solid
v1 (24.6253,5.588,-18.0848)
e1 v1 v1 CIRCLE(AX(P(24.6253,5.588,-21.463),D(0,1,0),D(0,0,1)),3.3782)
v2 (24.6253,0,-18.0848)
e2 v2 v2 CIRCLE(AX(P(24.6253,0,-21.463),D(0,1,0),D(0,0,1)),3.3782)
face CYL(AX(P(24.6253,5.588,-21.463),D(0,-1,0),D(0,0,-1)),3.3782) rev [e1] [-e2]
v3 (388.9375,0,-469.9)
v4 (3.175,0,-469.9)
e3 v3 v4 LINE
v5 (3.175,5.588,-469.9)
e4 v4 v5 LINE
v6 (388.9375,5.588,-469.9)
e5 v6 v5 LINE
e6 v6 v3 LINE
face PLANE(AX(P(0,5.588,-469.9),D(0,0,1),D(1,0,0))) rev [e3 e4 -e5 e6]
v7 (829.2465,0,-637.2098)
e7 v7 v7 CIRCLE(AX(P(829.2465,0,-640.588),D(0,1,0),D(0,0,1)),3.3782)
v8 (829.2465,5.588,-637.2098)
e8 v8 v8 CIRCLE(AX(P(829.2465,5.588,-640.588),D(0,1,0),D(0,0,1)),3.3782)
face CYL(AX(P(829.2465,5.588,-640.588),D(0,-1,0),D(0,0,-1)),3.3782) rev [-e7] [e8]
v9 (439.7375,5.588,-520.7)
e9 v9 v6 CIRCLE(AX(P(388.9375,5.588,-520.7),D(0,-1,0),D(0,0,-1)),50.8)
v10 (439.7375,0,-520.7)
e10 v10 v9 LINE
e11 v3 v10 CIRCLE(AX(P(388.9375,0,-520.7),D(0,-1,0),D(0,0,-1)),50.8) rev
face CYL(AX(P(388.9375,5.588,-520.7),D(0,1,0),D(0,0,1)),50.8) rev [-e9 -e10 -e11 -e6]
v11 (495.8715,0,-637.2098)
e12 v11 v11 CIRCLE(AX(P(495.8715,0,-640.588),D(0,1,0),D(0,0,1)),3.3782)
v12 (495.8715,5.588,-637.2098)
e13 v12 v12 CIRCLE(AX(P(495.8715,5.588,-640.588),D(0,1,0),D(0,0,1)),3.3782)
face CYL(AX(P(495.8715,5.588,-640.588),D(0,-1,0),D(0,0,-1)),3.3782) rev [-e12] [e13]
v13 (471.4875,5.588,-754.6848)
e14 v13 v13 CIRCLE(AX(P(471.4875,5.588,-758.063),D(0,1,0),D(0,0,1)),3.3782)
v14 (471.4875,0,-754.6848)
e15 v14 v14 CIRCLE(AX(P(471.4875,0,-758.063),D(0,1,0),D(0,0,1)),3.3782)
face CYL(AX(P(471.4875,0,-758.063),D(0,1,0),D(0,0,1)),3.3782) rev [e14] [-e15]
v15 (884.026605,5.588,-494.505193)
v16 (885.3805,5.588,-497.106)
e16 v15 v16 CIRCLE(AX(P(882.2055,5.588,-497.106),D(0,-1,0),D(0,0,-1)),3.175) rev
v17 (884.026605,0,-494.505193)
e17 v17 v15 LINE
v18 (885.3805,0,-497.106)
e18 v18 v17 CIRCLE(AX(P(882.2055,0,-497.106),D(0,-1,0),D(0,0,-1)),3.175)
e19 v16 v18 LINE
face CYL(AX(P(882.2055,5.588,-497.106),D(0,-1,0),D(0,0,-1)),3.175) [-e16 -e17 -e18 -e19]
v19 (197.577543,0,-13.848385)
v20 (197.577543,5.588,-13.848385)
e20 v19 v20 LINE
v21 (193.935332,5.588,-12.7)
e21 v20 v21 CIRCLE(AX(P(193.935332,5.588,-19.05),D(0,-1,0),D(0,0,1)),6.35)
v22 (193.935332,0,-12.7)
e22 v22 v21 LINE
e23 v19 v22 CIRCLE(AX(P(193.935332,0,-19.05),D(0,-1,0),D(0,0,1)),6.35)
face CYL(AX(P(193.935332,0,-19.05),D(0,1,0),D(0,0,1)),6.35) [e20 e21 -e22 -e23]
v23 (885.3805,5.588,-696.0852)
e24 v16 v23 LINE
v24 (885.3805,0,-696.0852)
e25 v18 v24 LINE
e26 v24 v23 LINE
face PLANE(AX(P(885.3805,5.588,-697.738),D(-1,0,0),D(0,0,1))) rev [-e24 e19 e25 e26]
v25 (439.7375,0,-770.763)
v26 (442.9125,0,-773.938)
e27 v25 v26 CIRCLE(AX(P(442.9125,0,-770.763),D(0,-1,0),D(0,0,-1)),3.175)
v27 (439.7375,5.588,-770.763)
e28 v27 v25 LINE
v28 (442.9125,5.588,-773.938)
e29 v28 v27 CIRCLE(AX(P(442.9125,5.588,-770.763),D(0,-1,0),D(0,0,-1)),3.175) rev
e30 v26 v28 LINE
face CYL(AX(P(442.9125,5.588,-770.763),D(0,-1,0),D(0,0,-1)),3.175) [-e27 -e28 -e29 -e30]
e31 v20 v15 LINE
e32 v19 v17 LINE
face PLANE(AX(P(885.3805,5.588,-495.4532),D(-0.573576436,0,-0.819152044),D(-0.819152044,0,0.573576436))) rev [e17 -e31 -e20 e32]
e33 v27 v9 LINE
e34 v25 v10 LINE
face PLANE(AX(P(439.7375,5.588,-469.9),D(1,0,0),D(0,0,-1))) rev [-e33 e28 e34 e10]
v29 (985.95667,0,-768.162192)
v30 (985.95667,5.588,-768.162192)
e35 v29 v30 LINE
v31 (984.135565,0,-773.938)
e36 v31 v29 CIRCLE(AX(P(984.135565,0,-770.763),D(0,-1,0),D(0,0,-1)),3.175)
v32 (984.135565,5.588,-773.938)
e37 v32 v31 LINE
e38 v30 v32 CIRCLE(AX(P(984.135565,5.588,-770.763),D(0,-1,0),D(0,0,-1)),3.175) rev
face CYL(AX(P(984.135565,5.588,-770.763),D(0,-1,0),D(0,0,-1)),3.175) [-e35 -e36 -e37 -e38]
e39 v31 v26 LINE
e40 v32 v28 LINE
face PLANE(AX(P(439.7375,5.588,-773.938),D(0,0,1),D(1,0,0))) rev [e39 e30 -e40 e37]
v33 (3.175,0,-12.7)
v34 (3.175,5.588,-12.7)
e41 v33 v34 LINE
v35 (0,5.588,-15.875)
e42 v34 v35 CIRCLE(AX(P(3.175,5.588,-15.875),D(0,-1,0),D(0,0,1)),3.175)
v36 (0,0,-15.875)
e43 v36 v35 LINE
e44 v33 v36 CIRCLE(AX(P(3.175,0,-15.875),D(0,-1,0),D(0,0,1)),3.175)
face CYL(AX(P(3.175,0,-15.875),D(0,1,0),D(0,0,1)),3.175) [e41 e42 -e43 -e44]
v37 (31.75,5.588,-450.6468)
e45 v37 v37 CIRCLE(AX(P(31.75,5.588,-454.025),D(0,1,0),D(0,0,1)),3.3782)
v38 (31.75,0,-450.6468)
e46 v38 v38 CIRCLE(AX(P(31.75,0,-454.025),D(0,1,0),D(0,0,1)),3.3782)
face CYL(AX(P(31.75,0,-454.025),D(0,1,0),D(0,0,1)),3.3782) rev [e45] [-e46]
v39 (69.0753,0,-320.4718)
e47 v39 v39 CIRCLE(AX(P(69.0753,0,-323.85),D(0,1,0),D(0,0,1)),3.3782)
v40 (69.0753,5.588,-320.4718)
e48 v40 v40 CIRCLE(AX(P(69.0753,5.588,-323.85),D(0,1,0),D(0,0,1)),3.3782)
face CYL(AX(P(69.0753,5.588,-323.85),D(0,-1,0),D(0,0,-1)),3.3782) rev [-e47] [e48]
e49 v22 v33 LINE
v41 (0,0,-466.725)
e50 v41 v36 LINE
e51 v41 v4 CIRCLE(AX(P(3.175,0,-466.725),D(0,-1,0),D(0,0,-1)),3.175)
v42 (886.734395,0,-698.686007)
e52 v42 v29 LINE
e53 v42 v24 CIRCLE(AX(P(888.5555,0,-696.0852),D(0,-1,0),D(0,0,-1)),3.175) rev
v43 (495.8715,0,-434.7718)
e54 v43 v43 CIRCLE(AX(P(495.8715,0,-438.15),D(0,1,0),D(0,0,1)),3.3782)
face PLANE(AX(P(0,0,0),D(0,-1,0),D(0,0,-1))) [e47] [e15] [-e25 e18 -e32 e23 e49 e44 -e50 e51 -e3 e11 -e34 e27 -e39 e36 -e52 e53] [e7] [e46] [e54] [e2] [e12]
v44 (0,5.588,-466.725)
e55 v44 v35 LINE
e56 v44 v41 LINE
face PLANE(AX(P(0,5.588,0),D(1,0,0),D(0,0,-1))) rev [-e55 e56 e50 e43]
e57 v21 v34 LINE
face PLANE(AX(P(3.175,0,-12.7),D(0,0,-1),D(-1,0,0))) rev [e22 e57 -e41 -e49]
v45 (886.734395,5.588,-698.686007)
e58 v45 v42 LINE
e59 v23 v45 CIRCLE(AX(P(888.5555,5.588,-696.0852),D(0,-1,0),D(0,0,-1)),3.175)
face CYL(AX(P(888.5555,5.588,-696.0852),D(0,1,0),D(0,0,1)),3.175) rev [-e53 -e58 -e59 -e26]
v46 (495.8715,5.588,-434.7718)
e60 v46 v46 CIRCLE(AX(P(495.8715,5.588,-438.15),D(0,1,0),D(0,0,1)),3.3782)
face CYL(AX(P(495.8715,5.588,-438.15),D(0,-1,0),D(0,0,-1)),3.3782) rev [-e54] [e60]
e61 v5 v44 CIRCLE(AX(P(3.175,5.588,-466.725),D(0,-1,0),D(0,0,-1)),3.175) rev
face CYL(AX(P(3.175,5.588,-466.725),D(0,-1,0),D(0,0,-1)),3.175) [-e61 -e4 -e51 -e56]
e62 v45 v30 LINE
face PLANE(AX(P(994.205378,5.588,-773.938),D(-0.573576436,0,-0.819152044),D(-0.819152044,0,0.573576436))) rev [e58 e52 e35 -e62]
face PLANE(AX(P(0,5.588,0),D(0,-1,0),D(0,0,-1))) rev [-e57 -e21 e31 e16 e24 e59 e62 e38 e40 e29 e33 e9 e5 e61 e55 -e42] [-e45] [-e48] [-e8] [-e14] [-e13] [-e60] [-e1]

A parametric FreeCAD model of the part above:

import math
import FreeCAD as App
import Part
import Sketcher
from FreeCAD import Vector
Q = App.Units.Quantity


def edges_at(feature, points):
    """Names of the edges that pass closest to the given points."""
    edges = feature.Shape.Edges
    near = lambda p: min(range(len(edges)), key=lambda i: edges[i].distToShape(Part.Vertex(*p))[0])
    return sorted({f"Edge{near(p) + 1}" for p in points})


def add_polygon(sketch, points):
    """Adds a closed chain of lines whose ends are joined by coincident constraints."""
    first, n = sketch.GeometryCount, len(points)
    for a, b in zip(points, points[1:] + points[:1]):
        sketch.addGeometry(Part.LineSegment(App.Vector(*a, 0), App.Vector(*b, 0)), False)
    for i in range(n):
        sketch.addConstraint(Sketcher.Constraint("Coincident", first + i, 2, first + (i + 1) % n, 1))

doc = App.newDocument("Part")
body = doc.addObject("PartDesign::Body", "Body")

sketch1 = body.newObject("Sketcher::SketchObject", "Sketch")
sketch1.AttachmentSupport = (doc.getObject("XZ_Plane"), [""])
sketch1.MapMode = "FlatFace"
add_polygon(sketch1, [(0, -469.9), (0, 0), (177.8, 0), (885.4, -495.5), (885.4, -697.7), (994.2, -773.9), (439.7, -773.9), (439.7, -469.9)])
sketch1.addGeometry(Part.Circle(Vector(24.6, -21.5, 0), Vector(0, 0, 1), 3.4), False)
sketch1.addGeometry(Part.Circle(Vector(69.1, -323.9, 0), Vector(0, 0, 1), 3.4), False)
sketch1.addGeometry(Part.Circle(Vector(495.9, -438.1, 0), Vector(0, 0, 1), 3.4), False)
sketch1.addGeometry(Part.Circle(Vector(829.2, -640.6, 0), Vector(0, 0, 1), 3.4), False)
sketch1.addGeometry(Part.Circle(Vector(495.9, -640.6, 0), Vector(0, 0, 1), 3.4), False)
sketch1.addConstraint(Sketcher.Constraint("Vertical", 0))
sketch1.addConstraint(Sketcher.Constraint("Horizontal", 1))
sketch1.addConstraint(Sketcher.Constraint("Vertical", 3))
sketch1.addConstraint(Sketcher.Constraint("Horizontal", 5))
sketch1.addConstraint(Sketcher.Constraint("Vertical", 6))
sketch1.addConstraint(Sketcher.Constraint("Horizontal", 7))
sketch1.addConstraint(Sketcher.Constraint("Coincident", 0, 2, -1, 1))
sketch1.addConstraint(Sketcher.Constraint("Equal", 8, 9))
sketch1.addConstraint(Sketcher.Constraint("Equal", 9, 10))
sketch1.addConstraint(Sketcher.Constraint("Equal", 10, 11))
sketch1.addConstraint(Sketcher.Constraint("Equal", 11, 12))
sketch1.addConstraint(Sketcher.Constraint("Parallel", 2, 4))
sketch1.addConstraint(Sketcher.Constraint("Horizontal", 11, 3, 12, 3))
sketch1.addConstraint(Sketcher.Constraint("Vertical", 10, 3, 12, 3))
sketch1.addConstraint(Sketcher.Constraint("DistanceX", 1, 1, 1, 2, Q("7 in")))
sketch1.addConstraint(Sketcher.Constraint("Diameter", 8, Q("0.266 in")))
sketch1.addConstraint(Sketcher.Constraint("DistanceY", 0, 1, 0, 2, Q("18.5 in")))
sketch1.addConstraint(Sketcher.Constraint("Angle", 2, Q("-35 deg")))
sketch1.addConstraint(Sketcher.Constraint("DistanceY", 4, 2, 3, 2, Q("3 in")))
sketch1.addConstraint(Sketcher.Constraint("DistanceY", 6, 1, 6, 2, Q("11.97 in")))
sketch1.addConstraint(Sketcher.Constraint("DistanceY", 10, 3, 9, 3, Q("4.5 in")))
sketch1.addConstraint(Sketcher.Constraint("DistanceX", 7, 2, 7, 1, Q("17.3125 in")))
sketch1.addConstraint(Sketcher.Constraint("DistanceY", 9, 3, -1, 1, Q("12.75 in")))
sketch1.addConstraint(Sketcher.Constraint("DistanceY", 11, 3, -1, 1, Q("25.22 in")))
sketch1.addConstraint(Sketcher.Constraint("DistanceX", 8, 3, 9, 3, Q("1.75 in")))
sketch1.addConstraint(Sketcher.Constraint("DistanceX", 11, 3, 2, 2, Q("2.21 in")))
sketch1.addConstraint(Sketcher.Constraint("DistanceX", 5, 2, 12, 3, Q("2.21 in")))
sketch1.addConstraint(Sketcher.Constraint("DistanceY", 8, 3, -1, 1, Q("0.845 in")))
sketch1.addConstraint(Sketcher.Constraint("DistanceX", 9, 3, 10, 3, Q("16.803 in")))
sketch1.addConstraint(Sketcher.Constraint("DistanceX", 10, 3, 11, 3, Q("13.125 in")))
pad1 = body.newObject("PartDesign::Pad", "Pad")
pad1.Profile = sketch1
pad1.Length = Q("0.22 in")
pad1.Reversed = True
doc.recompute()

fillet = body.newObject("PartDesign::Fillet", "Fillet")
fillet.Base = (pad1, edges_at(pad1, [(439.738, 2.794, -469.9)]))
fillet.Radius = Q("2 in")

sketch2 = body.newObject("Sketcher::SketchObject", "Sketch001")
sketch2.AttachmentSupport = (doc.getObject("XZ_Plane"), [""])
sketch2.MapMode = "FlatFace"
sketch2.AttachmentOffset = App.Placement(Vector(0, 0, -0.22 * 25.4), App.Rotation())
sketch2.addGeometry(Part.Circle(Vector(31.8, -454, 0), Vector(0, 0, 1), 3.4), False)
sketch2.addGeometry(Part.Circle(Vector(471.5, -758.1, 0), Vector(0, 0, 1), 3.4), False)
sketch2.addConstraint(Sketcher.Constraint("Equal", 0, 1))
sketch2.addConstraint(Sketcher.Constraint("Diameter", 0, Q("0.266 in")))
sketch2.addConstraint(Sketcher.Constraint("DistanceX", -1, 1, 0, 3, Q("1.25 in")))
sketch2.addConstraint(Sketcher.Constraint("DistanceY", 1, 3, 0, 3, Q("11.97 in")))
sketch2.addConstraint(Sketcher.Constraint("DistanceY", 0, 3, -1, 1, Q("17.875 in")))
sketch2.addConstraint(Sketcher.Constraint("DistanceX", -1, 1, 1, 3, Q("18.5625 in")))
pocket1 = body.newObject("PartDesign::Pocket", "Pocket")
pocket1.Profile = sketch2
pocket1.Type = "ThroughAll"
pocket1.Reversed = True
doc.recompute()

fillet2 = body.newObject("PartDesign::Fillet", "Fillet001")
fillet2.Base = (pocket1, edges_at(pocket1, [
    (0, 2.794, 0),
    (0, 2.794, -469.9),
    (439.738, 2.794, -773.938),
    (994.205, 2.794, -773.938),
    (885.38, 2.794, -697.738),
    (885.38, 2.794, -495.453),
    (177.8, 2.794, 0),
]))
fillet2.Radius = Q("0.125 in")

sketch3 = body.newObject("Sketcher::SketchObject", "Sketch002")
sketch3.AttachmentSupport = (doc.getObject("XZ_Plane"), [""])
sketch3.MapMode = "FlatFace"
sketch3.AttachmentOffset = App.Placement(Vector(0, 0, -0.22 * 25.4), App.Rotation())
sketch3.addGeometry(Part.LineSegment(Vector(3.2, 0, 0), Vector(176.8, 0, 0)), False)
sketch3.addGeometry(Part.ArcOfCircle(Part.Circle(Vector(176.8, -3.2, 0), Vector(0, 0, 1), 3.2), math.radians(55), math.radians(90)), False)
sketch3.addGeometry(Part.LineSegment(Vector(178.6, -0.6, 0), Vector(197.6, -13.8, 0)), False)
sketch3.addGeometry(Part.ArcOfCircle(Part.Circle(Vector(193.9, -19.1, 0), Vector(0, 0, 1), 6.4), math.radians(55), math.radians(90)), False)
sketch3.addGeometry(Part.LineSegment(Vector(193.9, -12.7, 0), Vector(3.2, -12.7, 0)), False)
sketch3.addGeometry(Part.ArcOfCircle(Part.Circle(Vector(3.2, -15.9, 0), Vector(0, 0, 1), 3.2), math.radians(90), math.radians(180)), False)
sketch3.addGeometry(Part.LineSegment(Vector(0, -15.9, 0), Vector(0, -3.2, 0)), False)
sketch3.addGeometry(Part.ArcOfCircle(Part.Circle(Vector(3.2, -3.2, 0), Vector(0, 0, 1), 3.2), math.radians(90), math.radians(180)), False)
sketch3.addConstraint(Sketcher.Constraint("Tangent", 0, 2, 1, 2))
sketch3.addConstraint(Sketcher.Constraint("Tangent", 1, 1, 2, 1))
sketch3.addConstraint(Sketcher.Constraint("Tangent", 2, 2, 3, 1))
sketch3.addConstraint(Sketcher.Constraint("Tangent", 3, 2, 4, 1))
sketch3.addConstraint(Sketcher.Constraint("Tangent", 4, 2, 5, 1))
sketch3.addConstraint(Sketcher.Constraint("Tangent", 5, 2, 6, 1))
sketch3.addConstraint(Sketcher.Constraint("Tangent", 6, 2, 7, 2))
sketch3.addConstraint(Sketcher.Constraint("Tangent", 7, 1, 0, 1))
sketch3.addConstraint(Sketcher.Constraint("Horizontal", 0))
sketch3.addConstraint(Sketcher.Constraint("Horizontal", 4))
sketch3.addConstraint(Sketcher.Constraint("Vertical", 6))
sketch3.addConstraint(Sketcher.Constraint("Equal", 1, 5))
sketch3.addConstraint(Sketcher.Constraint("Equal", 5, 7))
sketch3.addConstraint(Sketcher.Constraint("PointOnObject", 0, 2, -1))
sketch3.addConstraint(Sketcher.Constraint("PointOnObject", 5, 2, -2))
sketch3.addConstraint(Sketcher.Constraint("Radius", 3, Q("0.25 in")))
sketch3.addConstraint(Sketcher.Constraint("DistanceY", 6, 1, 6, 2, Q("0.5 in")))
sketch3.addConstraint(Sketcher.Constraint("Angle", 2, Q("-35 deg")))
sketch3.addConstraint(Sketcher.Constraint("Radius", 1, Q("0.125 in")))
sketch3.addConstraint(Sketcher.Constraint("DistanceX", 0, 1, 0, 2, Q("173.623926 mm")))
pocket2 = body.newObject("PartDesign::Pocket", "Pocket001")
pocket2.Profile = sketch3
pocket2.Type = "ThroughAll"
pocket2.Reversed = True

doc.recompute()
